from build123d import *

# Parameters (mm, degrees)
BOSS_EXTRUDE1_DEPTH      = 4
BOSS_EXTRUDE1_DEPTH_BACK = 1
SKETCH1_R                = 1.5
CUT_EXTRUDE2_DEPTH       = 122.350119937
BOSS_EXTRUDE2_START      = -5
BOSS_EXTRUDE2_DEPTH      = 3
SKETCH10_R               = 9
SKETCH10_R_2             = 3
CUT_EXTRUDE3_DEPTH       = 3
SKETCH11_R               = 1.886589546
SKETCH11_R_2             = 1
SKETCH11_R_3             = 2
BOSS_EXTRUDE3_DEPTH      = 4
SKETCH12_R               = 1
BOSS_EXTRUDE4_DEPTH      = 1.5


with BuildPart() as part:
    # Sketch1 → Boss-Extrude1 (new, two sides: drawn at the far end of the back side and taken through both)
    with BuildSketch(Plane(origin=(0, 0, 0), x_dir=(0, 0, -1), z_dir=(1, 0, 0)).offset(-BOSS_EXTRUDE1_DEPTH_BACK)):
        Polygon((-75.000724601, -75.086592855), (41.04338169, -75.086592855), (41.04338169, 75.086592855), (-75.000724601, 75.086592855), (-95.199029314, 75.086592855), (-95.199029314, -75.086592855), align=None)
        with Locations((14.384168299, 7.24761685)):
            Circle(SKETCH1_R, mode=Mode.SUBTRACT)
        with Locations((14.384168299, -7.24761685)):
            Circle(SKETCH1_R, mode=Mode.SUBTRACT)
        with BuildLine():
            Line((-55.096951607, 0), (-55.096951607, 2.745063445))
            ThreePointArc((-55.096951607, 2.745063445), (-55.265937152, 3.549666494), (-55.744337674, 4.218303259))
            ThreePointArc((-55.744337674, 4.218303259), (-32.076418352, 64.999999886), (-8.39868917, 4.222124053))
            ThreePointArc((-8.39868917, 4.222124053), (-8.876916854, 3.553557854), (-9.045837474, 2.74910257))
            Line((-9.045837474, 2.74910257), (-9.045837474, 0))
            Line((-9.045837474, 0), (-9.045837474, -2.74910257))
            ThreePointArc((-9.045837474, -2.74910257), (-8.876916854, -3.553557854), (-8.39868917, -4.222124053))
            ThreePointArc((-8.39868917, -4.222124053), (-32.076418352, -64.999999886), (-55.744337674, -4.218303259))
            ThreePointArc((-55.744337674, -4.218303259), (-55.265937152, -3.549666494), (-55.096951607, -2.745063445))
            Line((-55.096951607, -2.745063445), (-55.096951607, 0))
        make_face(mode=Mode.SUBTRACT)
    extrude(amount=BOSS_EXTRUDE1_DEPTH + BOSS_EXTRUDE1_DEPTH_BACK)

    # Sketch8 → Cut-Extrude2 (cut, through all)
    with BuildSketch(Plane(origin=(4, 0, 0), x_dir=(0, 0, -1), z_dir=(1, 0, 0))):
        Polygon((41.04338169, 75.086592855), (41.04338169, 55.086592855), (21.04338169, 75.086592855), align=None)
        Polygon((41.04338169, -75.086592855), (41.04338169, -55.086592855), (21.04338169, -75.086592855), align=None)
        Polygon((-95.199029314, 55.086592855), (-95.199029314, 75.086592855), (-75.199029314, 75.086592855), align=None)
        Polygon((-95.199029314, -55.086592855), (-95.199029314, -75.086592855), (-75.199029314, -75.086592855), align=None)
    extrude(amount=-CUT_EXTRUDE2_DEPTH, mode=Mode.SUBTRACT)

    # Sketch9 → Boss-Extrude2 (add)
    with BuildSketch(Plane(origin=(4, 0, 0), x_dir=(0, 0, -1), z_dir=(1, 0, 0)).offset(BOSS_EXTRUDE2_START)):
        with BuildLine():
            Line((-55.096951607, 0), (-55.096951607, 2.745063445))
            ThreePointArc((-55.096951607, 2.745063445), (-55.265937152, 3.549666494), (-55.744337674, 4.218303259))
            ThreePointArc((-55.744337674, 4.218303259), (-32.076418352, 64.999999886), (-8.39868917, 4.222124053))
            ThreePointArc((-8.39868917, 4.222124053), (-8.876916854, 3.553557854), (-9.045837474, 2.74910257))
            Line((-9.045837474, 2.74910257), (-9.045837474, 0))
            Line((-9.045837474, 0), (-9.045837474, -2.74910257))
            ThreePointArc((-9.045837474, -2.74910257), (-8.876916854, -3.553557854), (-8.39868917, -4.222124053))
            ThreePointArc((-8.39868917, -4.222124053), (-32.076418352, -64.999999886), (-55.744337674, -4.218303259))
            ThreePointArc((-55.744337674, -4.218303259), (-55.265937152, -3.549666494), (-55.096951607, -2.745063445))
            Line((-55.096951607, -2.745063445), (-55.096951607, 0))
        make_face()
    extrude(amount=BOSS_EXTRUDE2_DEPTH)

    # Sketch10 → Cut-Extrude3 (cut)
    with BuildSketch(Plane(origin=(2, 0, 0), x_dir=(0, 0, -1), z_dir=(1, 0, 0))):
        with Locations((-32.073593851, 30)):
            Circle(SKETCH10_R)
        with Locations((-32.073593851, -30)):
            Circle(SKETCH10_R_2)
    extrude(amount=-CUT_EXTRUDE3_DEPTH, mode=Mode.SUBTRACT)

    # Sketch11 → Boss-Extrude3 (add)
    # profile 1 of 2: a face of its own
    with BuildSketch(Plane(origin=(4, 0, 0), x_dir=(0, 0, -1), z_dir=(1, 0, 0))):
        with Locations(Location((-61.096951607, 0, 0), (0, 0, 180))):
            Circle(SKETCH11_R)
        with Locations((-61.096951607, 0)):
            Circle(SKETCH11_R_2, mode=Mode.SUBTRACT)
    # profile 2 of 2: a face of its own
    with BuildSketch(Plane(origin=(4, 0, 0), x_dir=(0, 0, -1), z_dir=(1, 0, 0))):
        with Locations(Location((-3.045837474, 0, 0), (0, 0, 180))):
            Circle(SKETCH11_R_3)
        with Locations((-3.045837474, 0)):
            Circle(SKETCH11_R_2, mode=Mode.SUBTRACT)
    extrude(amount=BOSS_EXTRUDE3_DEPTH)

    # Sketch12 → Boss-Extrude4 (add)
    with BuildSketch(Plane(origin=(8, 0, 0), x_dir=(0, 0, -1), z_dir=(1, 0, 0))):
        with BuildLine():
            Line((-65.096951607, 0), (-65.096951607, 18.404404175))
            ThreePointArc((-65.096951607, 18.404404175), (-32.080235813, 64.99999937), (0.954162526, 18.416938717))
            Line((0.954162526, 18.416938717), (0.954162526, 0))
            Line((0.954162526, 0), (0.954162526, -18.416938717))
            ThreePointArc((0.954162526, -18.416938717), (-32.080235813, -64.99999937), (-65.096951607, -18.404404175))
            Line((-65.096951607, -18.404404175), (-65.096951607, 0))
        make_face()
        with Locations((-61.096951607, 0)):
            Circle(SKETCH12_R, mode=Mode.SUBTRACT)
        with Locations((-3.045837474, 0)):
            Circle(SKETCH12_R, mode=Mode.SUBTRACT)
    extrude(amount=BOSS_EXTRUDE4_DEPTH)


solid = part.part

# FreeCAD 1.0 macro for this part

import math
import FreeCAD as App
import Part
import Sketcher
from FreeCAD import Vector
Q = App.Units.Quantity


def add_polygon(sketch, points):
    """Adds a closed chain of lines whose ends are joined by coincident constraints."""
    first, n = sketch.GeometryCount, len(points)
    for a, b in zip(points, points[1:] + points[:1]):
        sketch.addGeometry(Part.LineSegment(App.Vector(*a, 0), App.Vector(*b, 0)), False)
    for i in range(n):
        sketch.addConstraint(Sketcher.Constraint("Coincident", first + i, 2, first + (i + 1) % n, 1))

doc = App.newDocument("Part")
params = doc.addObject("Spreadsheet::Sheet", "Params")
for row, (alias, value) in enumerate([
    ("sketch1_diameter", "3 mm"),
    ("sketch1_radius", "2 mm"),
    ("sketch1_radius2", "35 mm"),
    ("pad1_length", "4 mm"),
    ("pad1_length2", "1 mm"),
    ("sketch2_width", "20 mm"),
    ("sketch3_radius", "2 mm"),
    ("sketch3_radius2", "35 mm"),
    ("pad2_length", "3 mm"),
    ("sketch4_diameter", "18 mm"),
    ("sketch4_diameter2", "6 mm"),
    ("pocket2_length", "3 mm"),
    ("sketch5_diameter", "2 mm"),
    ("sketch5_diameter2", "4 mm"),
    ("pad3_length", "4 mm"),
    ("sketch6_diameter", "2 mm"),
    ("sketch6_radius", "35 mm"),
    ("pad4_length", "1.5 mm"),
], start=1):
    params.set(f"A{row}", alias)
    params.set(f"B{row}", "=" + value)
    params.setAlias(f"B{row}", alias)

body = doc.addObject("PartDesign::Body", "Body")

# Sketch on YZ plane
sketch1 = body.newObject("Sketcher::SketchObject", "Sketch")
sketch1.AttachmentSupport = (doc.getObject("YZ_Plane"), [""])
sketch1.MapMode = "FlatFace"
add_polygon(sketch1, [(-75.1, -41), (75.1, -41), (75.1, 95.2), (-75.1, 95.2)])  # lines 0-3
sketch1.addGeometry(Part.Circle(Vector(-7.2, -14.4, 0), Vector(0, 0, 1), 1.5), False)  # 4
sketch1.addGeometry(Part.LineSegment(Vector(-2.7, 55.1, 0), Vector(2.7, 55.1, 0)), False)  # 5
sketch1.addGeometry(Part.ArcOfCircle(Part.Circle(Vector(2.7, 57.1, 0), Vector(0, 0, 1), 2), math.radians(-90), math.radians(-43)), False)  # 6
sketch1.addGeometry(Part.ArcOfCircle(Part.Circle(Vector(30, 32.1, 0), Vector(0, 0, 1), 35), math.radians(-137), math.radians(137)), False)  # 7
sketch1.addGeometry(Part.ArcOfCircle(Part.Circle(Vector(2.7, 7, 0), Vector(0, 0, 1), 2), math.radians(43), math.radians(90)), False)  # 8
sketch1.addGeometry(Part.LineSegment(Vector(2.7, 9, 0), Vector(-2.7, 9, 0)), False)  # 9
sketch1.addGeometry(Part.ArcOfCircle(Part.Circle(Vector(-2.7, 7, 0), Vector(0, 0, 1), 2), math.radians(90), math.radians(137)), False)  # 10
sketch1.addGeometry(Part.ArcOfCircle(Part.Circle(Vector(-30, 32.1, 0), Vector(0, 0, 1), 35), math.radians(43), math.radians(317)), False)  # 11
sketch1.addGeometry(Part.ArcOfCircle(Part.Circle(Vector(-2.7, 57.1, 0), Vector(0, 0, 1), 2), math.radians(-137), math.radians(-90)), False)  # 12
sketch1.addGeometry(Part.Circle(Vector(7.2, -14.4, 0), Vector(0, 0, 1), 1.5), False)  # 13
sketch1.addConstraint([
    Sketcher.Constraint("Tangent", 5, 2, 6, 1),
    Sketcher.Constraint("Tangent", 6, 2, 7, 2),
    Sketcher.Constraint("Tangent", 7, 1, 8, 1),
    Sketcher.Constraint("Tangent", 8, 2, 9, 1),
    Sketcher.Constraint("Tangent", 9, 2, 10, 1),
    Sketcher.Constraint("Tangent", 10, 2, 11, 2),
    Sketcher.Constraint("Tangent", 11, 1, 12, 1),
    Sketcher.Constraint("Tangent", 12, 2, 5, 1),
    Sketcher.Constraint("Horizontal", 0),
    Sketcher.Constraint("Vertical", 1),
    Sketcher.Constraint("Horizontal", 2),
    Sketcher.Constraint("Vertical", 3),
    Sketcher.Constraint("Horizontal", 5),
    Sketcher.Constraint("Horizontal", 9),
    Sketcher.Constraint("Equal", 6, 8),
    Sketcher.Constraint("Equal", 8, 10),
    Sketcher.Constraint("Equal", 7, 11),
    Sketcher.Constraint("Equal", 10, 12),
    Sketcher.Constraint("Equal", 4, 13),
    Sketcher.Constraint("Symmetric", 7, 3, 11, 3, -2),
    Sketcher.Constraint("Symmetric", 4, 3, 13, 3, -2),
    Sketcher.Constraint("Diameter", 4, Q("3 mm")),
    Sketcher.Constraint("Radius", 6, Q("2 mm")),
    Sketcher.Constraint("Radius", 7, Q("35 mm")),
    Sketcher.Constraint("DistanceX", -1, 1, 7, 3, Q("30 mm")),
    Sketcher.Constraint("DistanceY", 1, 1, 1, 2, Q("136.242411 mm")),
    Sketcher.Constraint("DistanceX", 0, 1, 0, 2, Q("150.173186 mm")),
    Sketcher.Constraint("DistanceX", 5, 1, 5, 2, Q("5.490127 mm")),
    Sketcher.Constraint("DistanceX", 9, 2, 9, 1, Q("5.498205 mm")),
    Sketcher.Constraint("DistanceY", 4, 3, -1, 1, Q("14.384168 mm")),
    Sketcher.Constraint("DistanceY", -1, 1, 6, 3, Q("57.096952 mm")),
    Sketcher.Constraint("DistanceY", 0, 2, -1, 1, Q("41.043382 mm")),
    Sketcher.Constraint("DistanceX", 4, 3, 6, 3, Q("9.99268 mm")),
    Sketcher.Constraint("DistanceX", 4, 3, 0, 2, Q("82.33421 mm")),
])
sketch1.setExpression("Constraints[25]", "Params.sketch1_diameter")
sketch1.setExpression("Constraints[26]", "Params.sketch1_radius")
sketch1.setExpression("Constraints[27]", "Params.sketch1_radius2")
pad1 = body.newObject("PartDesign::Pad", "Pad")
pad1.Profile = sketch1
pad1.Type = "TwoLengths"
pad1.setExpression("Length", "Params.pad1_length")
pad1.setExpression("Length2", "Params.pad1_length2")

# Sketch on YZ plane
sketch2 = body.newObject("Sketcher::SketchObject", "Sketch001")
sketch2.AttachmentSupport = (doc.getObject("YZ_Plane"), [""])
sketch2.MapMode = "FlatFace"
sketch2.AttachmentOffset = App.Placement(Vector(0, 0, 4), App.Rotation())
add_polygon(sketch2, [(55, -41), (75, -41), (75, -21)])  # lines 0-2
add_polygon(sketch2, [(-75, -41), (-55, -41), (-75, -21)])  # lines 3-5
add_polygon(sketch2, [(75, 95), (55, 95), (75, 75)])  # lines 6-8
add_polygon(sketch2, [(-55, 95), (-75, 95), (-75, 75)])  # lines 9-11
sketch2.addConstraint([
    Sketcher.Constraint("Horizontal", 0),
    Sketcher.Constraint("Vertical", 1),
    Sketcher.Constraint("Horizontal", 3),
    Sketcher.Constraint("Vertical", 5),
    Sketcher.Constraint("Horizontal", 6),
    Sketcher.Constraint("Vertical", 8),
    Sketcher.Constraint("Horizontal", 9),
    Sketcher.Constraint("Vertical", 10),
    Sketcher.Constraint("Symmetric", 2, 2, 3, 2, -2),
    Sketcher.Constraint("Symmetric", 1, 2, 4, 2, -2),
    Sketcher.Constraint("Symmetric", 8, 2, 9, 2, -2),
    Sketcher.Constraint("Perpendicular", 2, 4),
    Sketcher.Constraint("Parallel", 4, 7),
    Sketcher.Constraint("Perpendicular", 7, 11),
    Sketcher.Constraint("Horizontal", 7, 2, 10, 2),
    Sketcher.Constraint("Vertical", 2, 2, 6, 2),
    Sketcher.Constraint("Vertical", 1, 2, 7, 2),
    Sketcher.Constraint("DistanceX", 0, 1, 0, 2, Q("20 mm")),
    Sketcher.Constraint("DistanceY", 0, 2, -1, 1, Q("41.043382 mm")),
    Sketcher.Constraint("DistanceY", -1, 1, 6, 2, Q("95.199029 mm")),
    Sketcher.Constraint("DistanceX", -1, 1, 0, 2, Q("75.086593 mm")),
])
sketch2.setExpression("Constraints[29]", "Params.sketch2_width")
pocket1 = body.newObject("PartDesign::Pocket", "Pocket")
pocket1.Profile = sketch2
pocket1.Type = "ThroughAll"

# Sketch on YZ plane
sketch3 = body.newObject("Sketcher::SketchObject", "Sketch002")
sketch3.AttachmentSupport = (doc.getObject("YZ_Plane"), [""])
sketch3.MapMode = "FlatFace"
sketch3.AttachmentOffset = App.Placement(Vector(0, 0, -1), App.Rotation())
sketch3.addGeometry([
    Part.ArcOfCircle(Part.Circle(Vector(2.7, 57.1, 0), Vector(0, 0, 1), 2), math.radians(-90), math.radians(-43)),  # 0
    Part.LineSegment(Vector(2.7, 55.1, 0), Vector(-2.7, 55.1, 0)),  # 1
    Part.ArcOfCircle(Part.Circle(Vector(-2.7, 57.1, 0), Vector(0, 0, 1), 2), math.radians(-137), math.radians(-90)),  # 2
    Part.ArcOfCircle(Part.Circle(Vector(-30, 32.1, 0), Vector(0, 0, 1), 35), math.radians(43), math.radians(317)),  # 3
    Part.ArcOfCircle(Part.Circle(Vector(-2.7, 7, 0), Vector(0, 0, 1), 2), math.radians(90), math.radians(137)),  # 4
    Part.LineSegment(Vector(-2.7, 9, 0), Vector(2.7, 9, 0)),  # 5
    Part.ArcOfCircle(Part.Circle(Vector(2.7, 7, 0), Vector(0, 0, 1), 2), math.radians(43), math.radians(90)),  # 6
    Part.ArcOfCircle(Part.Circle(Vector(30, 32.1, 0), Vector(0, 0, 1), 35), math.radians(-137), math.radians(137)),  # 7
], False)
sketch3.addConstraint([
    Sketcher.Constraint("Tangent", 0, 1, 1, 1),
    Sketcher.Constraint("Tangent", 1, 2, 2, 2),
    Sketcher.Constraint("Tangent", 2, 1, 3, 1),
    Sketcher.Constraint("Tangent", 3, 2, 4, 2),
    Sketcher.Constraint("Tangent", 4, 1, 5, 1),
    Sketcher.Constraint("Tangent", 5, 2, 6, 2),
    Sketcher.Constraint("Tangent", 6, 1, 7, 1),
    Sketcher.Constraint("Tangent", 7, 2, 0, 2),
    Sketcher.Constraint("Horizontal", 1),
    Sketcher.Constraint("Horizontal", 5),
    Sketcher.Constraint("Equal", 0, 2),
    Sketcher.Constraint("Equal", 2, 4),
    Sketcher.Constraint("Equal", 4, 6),
    Sketcher.Constraint("Equal", 3, 7),
    Sketcher.Constraint("Symmetric", 3, 3, 7, 3, -2),
    Sketcher.Constraint("Radius", 0, Q("2 mm")),
    Sketcher.Constraint("Radius", 3, Q("35 mm")),
    Sketcher.Constraint("DistanceX", 3, 3, -1, 1, Q("30 mm")),
    Sketcher.Constraint("DistanceX", 1, 2, 1, 1, Q("5.490127 mm")),
    Sketcher.Constraint("DistanceX", 5, 1, 5, 2, Q("5.498205 mm")),
    Sketcher.Constraint("DistanceY", -1, 1, 0, 3, Q("57.096952 mm")),
])
sketch3.setExpression("Constraints[15]", "Params.sketch3_radius")
sketch3.setExpression("Constraints[16]", "Params.sketch3_radius2")
pad2 = body.newObject("PartDesign::Pad", "Pad001")
pad2.Profile = sketch3
pad2.setExpression("Length", "Params.pad2_length")

# Sketch on YZ plane
sketch4 = body.newObject("Sketcher::SketchObject", "Sketch003")
sketch4.AttachmentSupport = (doc.getObject("YZ_Plane"), [""])
sketch4.MapMode = "FlatFace"
sketch4.AttachmentOffset = App.Placement(Vector(0, 0, 2), App.Rotation())
sketch4.addGeometry([
    Part.Circle(Vector(30, 32.1, 0), Vector(0, 0, 1), 9),
    Part.Circle(Vector(-30, 32.1, 0), Vector(0, 0, 1), 3),
], False)
sketch4.addConstraint([
    Sketcher.Constraint("Symmetric", 0, 3, 1, 3, -2),
    Sketcher.Constraint("Diameter", 0, Q("18 mm")),
    Sketcher.Constraint("Diameter", 1, Q("6 mm")),
    Sketcher.Constraint("DistanceX", -1, 1, 0, 3, Q("30 mm")),
    Sketcher.Constraint("DistanceY", -1, 1, 0, 3, Q("32.073594 mm")),
])
sketch4.setExpression("Constraints[1]", "Params.sketch4_diameter")
sketch4.setExpression("Constraints[2]", "Params.sketch4_diameter2")
pocket2 = body.newObject("PartDesign::Pocket", "Pocket001")
pocket2.Profile = sketch4
pocket2.setExpression("Length", "Params.pocket2_length")

# Sketch on YZ plane
sketch5 = body.newObject("Sketcher::SketchObject", "Sketch004")
sketch5.AttachmentSupport = (doc.getObject("YZ_Plane"), [""])
sketch5.MapMode = "FlatFace"
sketch5.AttachmentOffset = App.Placement(Vector(0, 0, 4), App.Rotation())
sketch5.addGeometry([
    Part.Circle(Vector(0, 61.1, 0), Vector(0, 0, 1), 1.9),
    Part.Circle(Vector(0, 61.1, 0), Vector(0, 0, 1), 1),
    Part.Circle(Vector(0, 3, 0), Vector(0, 0, 1), 2),
    Part.Circle(Vector(0, 3, 0), Vector(0, 0, 1), 1),
], False)
sketch5.addConstraint([
    Sketcher.Constraint("Coincident", 1, 3, 0, 3),
    Sketcher.Constraint("Coincident", 3, 3, 2, 3),
    Sketcher.Constraint("Equal", 1, 3),
    Sketcher.Constraint("PointOnObject", 0, 3, -2),
    Sketcher.Constraint("PointOnObject", 2, 3, -2),
    Sketcher.Constraint("Diameter", 1, Q("2 mm")),
    Sketcher.Constraint("Diameter", 2, Q("4 mm")),
    Sketcher.Constraint("Diameter", 0, Q("3.773179 mm")),
    Sketcher.Constraint("DistanceY", -1, 1, 0, 3, Q("61.096952 mm")),
    Sketcher.Constraint("DistanceY", -1, 1, 2, 3, Q("3.045837 mm")),
])
sketch5.setExpression("Constraints[5]", "Params.sketch5_diameter")
sketch5.setExpression("Constraints[6]", "Params.sketch5_diameter2")
pad3 = body.newObject("PartDesign::Pad", "Pad002")
pad3.Profile = sketch5
pad3.setExpression("Length", "Params.pad3_length")

# Sketch on YZ plane
sketch6 = body.newObject("Sketcher::SketchObject", "Sketch005")
sketch6.AttachmentSupport = (doc.getObject("YZ_Plane"), [""])
sketch6.MapMode = "FlatFace"
sketch6.AttachmentOffset = App.Placement(Vector(0, 0, 8), App.Rotation())
sketch6.addGeometry([
    Part.ArcOfCircle(Part.Circle(Vector(30, 32.1, 0), Vector(0, 0, 1), 35), math.radians(-109), math.radians(109)),  # 0
    Part.LineSegment(Vector(18.4, 65.1, 0), Vector(-18.4, 65.1, 0)),  # 1
    Part.ArcOfCircle(Part.Circle(Vector(-30, 32.1, 0), Vector(0, 0, 1), 35), math.radians(71), math.radians(289)),  # 2
    Part.LineSegment(Vector(-18.4, -1, 0), Vector(18.4, -1, 0)),  # 3
    Part.Circle(Vector(0, 3, 0), Vector(0, 0, 1), 1),  # 4
    Part.Circle(Vector(0, 61.1, 0), Vector(0, 0, 1), 1),  # 5
], False)
sketch6.addConstraint([
    Sketcher.Constraint("Coincident", 0, 2, 1, 1),
    Sketcher.Constraint("Coincident", 1, 2, 2, 1),
    Sketcher.Constraint("Coincident", 2, 2, 3, 1),
    Sketcher.Constraint("Coincident", 3, 2, 0, 1),
    Sketcher.Constraint("Horizontal", 1),
    Sketcher.Constraint("Horizontal", 3),
    Sketcher.Constraint("Equal", 0, 2),
    Sketcher.Constraint("Equal", 4, 5),
    Sketcher.Constraint("Symmetric", 0, 3, 2, 3, -2),
    Sketcher.Constraint("PointOnObject", 4, 3, -2),
    Sketcher.Constraint("PointOnObject", 5, 3, -2),
    Sketcher.Constraint("Diameter", 4, Q("2 mm")),
    Sketcher.Constraint("Radius", 0, Q("35 mm")),
    Sketcher.Constraint("DistanceX", -1, 1, 0, 3, Q("30 mm")),
    Sketcher.Constraint("DistanceY", 5, 3, 0, 2, Q("4 mm")),
    Sketcher.Constraint("DistanceY", 2, 2, 4, 3, Q("4 mm")),
    Sketcher.Constraint("DistanceX", 1, 2, 1, 1, Q("36.808808 mm")),
    Sketcher.Constraint("DistanceX", 3, 1, 3, 2, Q("36.833877 mm")),
    Sketcher.Constraint("DistanceY", -1, 1, 5, 3, Q("61.096952 mm")),
])
sketch6.setExpression("Constraints[11]", "Params.sketch6_diameter")
sketch6.setExpression("Constraints[12]", "Params.sketch6_radius")
pad4 = body.newObject("PartDesign::Pad", "Pad003")
pad4.Profile = sketch6
pad4.setExpression("Length", "Params.pad4_length")

doc.recompute()
